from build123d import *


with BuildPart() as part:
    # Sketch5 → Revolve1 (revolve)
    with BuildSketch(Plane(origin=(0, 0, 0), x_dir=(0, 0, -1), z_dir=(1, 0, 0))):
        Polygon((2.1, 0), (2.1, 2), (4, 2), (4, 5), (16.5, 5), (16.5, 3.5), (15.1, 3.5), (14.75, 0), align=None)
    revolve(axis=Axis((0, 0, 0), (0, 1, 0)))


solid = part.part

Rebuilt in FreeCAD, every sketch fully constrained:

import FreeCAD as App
import Part
import Sketcher

doc = App.newDocument("Part")
params = doc.addObject("Spreadsheet::Sheet", "Params")
for row, (alias, value) in enumerate([
    ("sketch1_width", "2 mm"),
    ("sketch1_width2", "3 mm"),
    ("sketch1_width3", "1.5 mm"),
    ("sketch1_height", "1.4 mm"),
    ("sketch1_height2", "12.5 mm"),
    ("revolution_angle", "360 deg"),
], start=1):
    params.set(f"A{row}", alias)
    params.set(f"B{row}", "=" + value)
    params.setAlias(f"B{row}", alias)

body = doc.addObject("PartDesign::Body", "Body")

# Sketch on YZ plane
sketch1 = body.newObject("Sketcher::SketchObject", "Sketch")
sketch1.AttachmentSupport = (doc.getObject("YZ_Plane"), [""])
sketch1.MapMode = "FlatFace"
sketch1.addGeometry([
    Part.LineSegment(App.Vector(2, -2.1, 0), App.Vector(0, -2.1, 0)),  # 0
    Part.LineSegment(App.Vector(0, -2.1, 0), App.Vector(0, -14.8, 0)),  # 1
    Part.LineSegment(App.Vector(0, -14.8, 0), App.Vector(3.5, -15.1, 0)),  # 2
    Part.LineSegment(App.Vector(3.5, -15.1, 0), App.Vector(3.5, -16.5, 0)),  # 3
    Part.LineSegment(App.Vector(3.5, -16.5, 0), App.Vector(5, -16.5, 0)),  # 4
    Part.LineSegment(App.Vector(5, -16.5, 0), App.Vector(5, -4, 0)),  # 5
    Part.LineSegment(App.Vector(5, -4, 0), App.Vector(2, -4, 0)),  # 6
    Part.LineSegment(App.Vector(2, -4, 0), App.Vector(2, -2.1, 0)),  # 7
], False)
sketch1.addConstraint([
    Sketcher.Constraint("Coincident", 0, 2, 1, 1),
    Sketcher.Constraint("Coincident", 1, 2, 2, 1),
    Sketcher.Constraint("Coincident", 2, 2, 3, 1),
    Sketcher.Constraint("Coincident", 3, 2, 4, 1),
    Sketcher.Constraint("Coincident", 4, 2, 5, 1),
    Sketcher.Constraint("Coincident", 5, 2, 6, 1),
    Sketcher.Constraint("Coincident", 6, 2, 7, 1),
    Sketcher.Constraint("Coincident", 7, 2, 0, 1),
    Sketcher.Constraint("Horizontal", 0),
    Sketcher.Constraint("Vertical", 1),
    Sketcher.Constraint("Vertical", 3),
    Sketcher.Constraint("Horizontal", 4),
    Sketcher.Constraint("Vertical", 5),
    Sketcher.Constraint("Horizontal", 6),
    Sketcher.Constraint("Vertical", 7),
    Sketcher.Constraint("PointOnObject", 0, 2, -2),
    Sketcher.Constraint("DistanceX", 0, 2, 0, 1, 2.0),
    Sketcher.Constraint("DistanceX", 6, 2, 6, 1, 3.0),
    Sketcher.Constraint("DistanceX", 4, 1, 4, 2, 1.5),
    Sketcher.Constraint("DistanceY", 3, 2, 3, 1, 1.4),
    Sketcher.Constraint("DistanceY", 5, 1, 5, 2, 12.5),
    Sketcher.Constraint("DistanceY", 7, 1, 7, 2, 1.9),
    Sketcher.Constraint("DistanceY", 5, 2, -1, 1, 4.0),
    Sketcher.Constraint("DistanceY", 1, 2, 1, 1, 12.65),
])
sketch1.setExpression("Constraints[16]", "Params.sketch1_width")
sketch1.setExpression("Constraints[17]", "Params.sketch1_width2")
sketch1.setExpression("Constraints[18]", "Params.sketch1_width3")
sketch1.setExpression("Constraints[19]", "Params.sketch1_height")
sketch1.setExpression("Constraints[20]", "Params.sketch1_height2")
revolution = body.newObject("PartDesign::Revolution", "Revolution")
revolution.Profile = sketch1
revolution.ReferenceAxis = (sketch1, ["H_Axis"])
revolution.setExpression("Angle", "Params.revolution_angle")

doc.recompute()
